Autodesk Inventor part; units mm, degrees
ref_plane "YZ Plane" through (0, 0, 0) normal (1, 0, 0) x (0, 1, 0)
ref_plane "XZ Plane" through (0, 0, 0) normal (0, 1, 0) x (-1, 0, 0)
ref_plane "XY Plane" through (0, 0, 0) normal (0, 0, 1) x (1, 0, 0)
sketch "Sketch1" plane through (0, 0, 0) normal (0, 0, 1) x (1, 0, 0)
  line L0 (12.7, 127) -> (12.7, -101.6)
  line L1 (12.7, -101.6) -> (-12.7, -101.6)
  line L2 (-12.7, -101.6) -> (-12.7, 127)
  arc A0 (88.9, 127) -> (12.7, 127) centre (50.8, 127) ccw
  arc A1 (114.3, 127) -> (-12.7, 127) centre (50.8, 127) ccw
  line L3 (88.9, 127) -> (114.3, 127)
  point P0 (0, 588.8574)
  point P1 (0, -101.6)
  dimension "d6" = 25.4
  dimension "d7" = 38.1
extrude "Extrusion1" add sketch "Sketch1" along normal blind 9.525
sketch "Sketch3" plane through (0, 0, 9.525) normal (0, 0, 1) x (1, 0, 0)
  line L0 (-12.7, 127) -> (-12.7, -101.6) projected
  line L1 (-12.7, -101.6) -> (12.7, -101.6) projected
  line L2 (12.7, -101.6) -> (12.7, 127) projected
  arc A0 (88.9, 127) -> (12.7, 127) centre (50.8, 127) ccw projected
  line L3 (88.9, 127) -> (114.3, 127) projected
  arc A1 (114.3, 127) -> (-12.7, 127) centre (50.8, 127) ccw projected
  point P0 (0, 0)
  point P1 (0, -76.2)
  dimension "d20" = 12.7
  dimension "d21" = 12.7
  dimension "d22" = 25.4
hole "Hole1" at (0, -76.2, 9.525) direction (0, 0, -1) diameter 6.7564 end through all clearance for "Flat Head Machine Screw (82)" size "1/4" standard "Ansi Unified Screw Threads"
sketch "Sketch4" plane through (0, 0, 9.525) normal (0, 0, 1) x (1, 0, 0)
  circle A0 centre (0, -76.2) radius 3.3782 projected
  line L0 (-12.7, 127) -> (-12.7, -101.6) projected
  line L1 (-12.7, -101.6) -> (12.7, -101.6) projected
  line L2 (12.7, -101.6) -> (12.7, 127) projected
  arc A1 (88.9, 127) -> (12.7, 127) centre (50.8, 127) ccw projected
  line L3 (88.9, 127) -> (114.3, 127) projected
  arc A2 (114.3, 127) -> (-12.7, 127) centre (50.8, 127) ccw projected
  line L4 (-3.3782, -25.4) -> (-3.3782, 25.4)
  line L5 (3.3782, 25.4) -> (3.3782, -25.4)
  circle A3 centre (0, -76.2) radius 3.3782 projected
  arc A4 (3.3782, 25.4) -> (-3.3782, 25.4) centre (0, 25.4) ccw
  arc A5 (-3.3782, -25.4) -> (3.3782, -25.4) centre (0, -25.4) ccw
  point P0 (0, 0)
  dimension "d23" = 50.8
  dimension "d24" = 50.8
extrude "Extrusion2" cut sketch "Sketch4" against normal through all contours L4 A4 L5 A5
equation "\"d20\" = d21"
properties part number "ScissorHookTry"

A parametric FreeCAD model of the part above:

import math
import FreeCAD as App
import Part
import Sketcher

V = App.Vector
Q = App.Units.Quantity

doc = App.newDocument("Part")
body = doc.addObject("PartDesign::Body", "Body")

# Sketch on XY plane
sketch1 = body.newObject("Sketcher::SketchObject", "Sketch")
sketch1.AttachmentSupport = (doc.getObject("XY_Plane"), [""])
sketch1.MapMode = "FlatFace"
sketch1.addGeometry([
    Part.LineSegment(V(13, -102, 0), V(13, 127, 0)),  # 0
    Part.ArcOfCircle(Part.Circle(V(51, 127, 0), V(0, 0, 1), 38), math.radians(0), math.radians(180)),  # 1
    Part.LineSegment(V(89, 127, 0), V(114, 127, 0)),  # 2
    Part.ArcOfCircle(Part.Circle(V(51, 127, 0), V(0, 0, 1), 64), math.radians(0), math.radians(180)),  # 3
    Part.LineSegment(V(-13, 127, 0), V(-13, -102, 0)),  # 4
    Part.LineSegment(V(-13, -102, 0), V(13, -102, 0)),  # 5
], False)
sketch1.addConstraint([
    Sketcher.Constraint("Tangent", 0, 2, 1, 2),
    Sketcher.Constraint("Coincident", 1, 1, 2, 1),
    Sketcher.Constraint("Coincident", 2, 2, 3, 1),
    Sketcher.Constraint("Tangent", 3, 2, 4, 1),
    Sketcher.Constraint("Coincident", 4, 2, 5, 1),
    Sketcher.Constraint("Coincident", 5, 2, 0, 1),
    Sketcher.Constraint("Vertical", 0),
    Sketcher.Constraint("Horizontal", 2),
    Sketcher.Constraint("Vertical", 4),
    Sketcher.Constraint("Horizontal", 5),
    Sketcher.Constraint("Coincident", 3, 3, 1, 3),
    Sketcher.Constraint("Horizontal", 0, 2, 1, 1),
    Sketcher.Constraint("Radius", 1, Q("1.5 in")),
    Sketcher.Constraint("DistanceX", 2, 1, 2, 2, Q("1 in")),
    Sketcher.Constraint("DistanceY", 0, 1, 0, 2, Q("9 in")),
    Sketcher.Constraint("DistanceX", -1, 1, 1, 3, Q("2 in")),
    Sketcher.Constraint("DistanceY", -1, 1, 1, 3, Q("5 in")),
])
pad1 = body.newObject("PartDesign::Pad", "Pad")
pad1.Profile = sketch1
pad1.Length = Q("0.375 in")

# Sketch on XY plane
sketch2 = body.newObject("Sketcher::SketchObject", "Sketch001")
sketch2.AttachmentSupport = (doc.getObject("XY_Plane"), [""])
sketch2.MapMode = "FlatFace"
sketch2.AttachmentOffset = App.Placement(V(0, 0, 0.375 * 25.4), App.Rotation())
sketch2.addGeometry(Part.Circle(V(0, -76.2, 0), V(0, 0, 1), 3.4), False)
sketch2.addConstraint([
    Sketcher.Constraint("PointOnObject", 0, 3, -2),
    Sketcher.Constraint("Diameter", 0, Q("0.266 in")),
    Sketcher.Constraint("DistanceY", 0, 3, -1, 1, Q("3 in")),
])
doc.recompute()
hole = body.newObject("PartDesign::Hole", "Hole")
hole.Profile = sketch2
hole.ThreadType = "None"
hole.Diameter = Q("0.266 in")
hole.DepthType = "ThroughAll"

# Sketch on XY plane
sketch3 = body.newObject("Sketcher::SketchObject", "Sketch002")
sketch3.AttachmentSupport = (doc.getObject("XY_Plane"), [""])
sketch3.MapMode = "FlatFace"
sketch3.AttachmentOffset = App.Placement(V(0, 0, 0.375 * 25.4), App.Rotation())
sketch3.addGeometry([
    Part.LineSegment(V(-3.4, 25.4, 0), V(-3.4, -25.4, 0)),
    Part.ArcOfCircle(Part.Circle(V(0, -25.4, 0), V(0, 0, 1), 3.4), math.radians(180), math.radians(360)),
    Part.LineSegment(V(3.4, -25.4, 0), V(3.4, 25.4, 0)),
    Part.ArcOfCircle(Part.Circle(V(0, 25.4, 0), V(0, 0, 1), 3.4), math.radians(0), math.radians(180)),
], False)
sketch3.addConstraint([
    Sketcher.Constraint("Tangent", 0, 2, 1, 1),
    Sketcher.Constraint("Tangent", 1, 2, 2, 1),
    Sketcher.Constraint("Tangent", 2, 2, 3, 1),
    Sketcher.Constraint("Tangent", 3, 2, 0, 1),
    Sketcher.Constraint("Vertical", 0),
    Sketcher.Constraint("Vertical", 2),
    Sketcher.Constraint("Symmetric", 1, 3, 3, 3, -1, 1),
    Sketcher.Constraint("DistanceY", 0, 2, 0, 1, Q("2 in")),
    Sketcher.Constraint("Radius", 1, Q("0.133 in")),
])
pocket1 = body.newObject("PartDesign::Pocket", "Pocket")
pocket1.Profile = sketch3
pocket1.Type = "ThroughAll"

doc.recompute()
